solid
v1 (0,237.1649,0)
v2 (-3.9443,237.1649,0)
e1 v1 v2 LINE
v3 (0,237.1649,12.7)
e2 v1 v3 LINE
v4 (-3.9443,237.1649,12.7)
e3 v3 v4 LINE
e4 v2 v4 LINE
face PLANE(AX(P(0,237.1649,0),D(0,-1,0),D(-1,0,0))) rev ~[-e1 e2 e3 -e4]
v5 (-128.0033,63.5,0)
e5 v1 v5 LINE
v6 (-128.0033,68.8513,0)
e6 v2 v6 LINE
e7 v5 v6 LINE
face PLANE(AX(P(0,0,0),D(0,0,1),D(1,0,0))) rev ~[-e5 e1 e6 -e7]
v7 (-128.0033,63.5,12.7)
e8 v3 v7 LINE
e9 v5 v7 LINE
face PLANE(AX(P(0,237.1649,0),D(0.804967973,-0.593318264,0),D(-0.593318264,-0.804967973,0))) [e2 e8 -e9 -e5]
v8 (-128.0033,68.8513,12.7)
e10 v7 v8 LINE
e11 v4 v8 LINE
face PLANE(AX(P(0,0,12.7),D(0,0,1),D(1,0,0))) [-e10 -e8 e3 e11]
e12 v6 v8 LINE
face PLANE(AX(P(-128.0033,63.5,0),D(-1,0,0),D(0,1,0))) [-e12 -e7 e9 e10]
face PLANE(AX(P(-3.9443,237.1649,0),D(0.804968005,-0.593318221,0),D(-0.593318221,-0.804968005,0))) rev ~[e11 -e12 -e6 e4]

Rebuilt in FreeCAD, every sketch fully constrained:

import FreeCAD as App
import Part
import Sketcher
from FreeCAD import Vector
Q = App.Units.Quantity

doc = App.newDocument("Part")
body = doc.addObject("PartDesign::Body", "Body")

# Sketch on XY plane
sketch1 = body.newObject("Sketcher::SketchObject", "Sketch")
sketch1.AttachmentSupport = (doc.getObject("XY_Plane"), [""])
sketch1.MapMode = "FlatFace"
sketch1.addGeometry([
    Part.LineSegment(Vector(-128, 63.5, 0), Vector(0, 237.2, 0)),
    Part.LineSegment(Vector(0, 237.2, 0), Vector(-3.9, 237.2, 0)),
    Part.LineSegment(Vector(-3.9, 237.2, 0), Vector(-128, 68.9, 0)),
    Part.LineSegment(Vector(-128, 68.9, 0), Vector(-128, 63.5, 0)),
], False)
sketch1.addConstraint([
    Sketcher.Constraint("Coincident", 0, 2, 1, 1),
    Sketcher.Constraint("Coincident", 1, 2, 2, 1),
    Sketcher.Constraint("Coincident", 2, 2, 3, 1),
    Sketcher.Constraint("Coincident", 3, 2, 0, 1),
    Sketcher.Constraint("Horizontal", 1),
    Sketcher.Constraint("Vertical", 3),
    Sketcher.Constraint("PointOnObject", 0, 2, -2),
    Sketcher.Constraint("Parallel", 0, 2),
    Sketcher.Constraint("DistanceY", -1, 1, 3, 2, Q("2.5 in")),
    Sketcher.Constraint("DistanceX", 2, 2, -1, 1, Q("5.0395 in")),
    Sketcher.Constraint("DistanceX", 1, 2, 1, 1, Q("3.9443 mm")),
    Sketcher.Constraint("DistanceY", 3, 2, 3, 1, Q("5.3513 mm")),
])
pad1 = body.newObject("PartDesign::Pad", "Pad")
pad1.Profile = sketch1
pad1.Length = Q("0.5 in")

doc.recompute()
